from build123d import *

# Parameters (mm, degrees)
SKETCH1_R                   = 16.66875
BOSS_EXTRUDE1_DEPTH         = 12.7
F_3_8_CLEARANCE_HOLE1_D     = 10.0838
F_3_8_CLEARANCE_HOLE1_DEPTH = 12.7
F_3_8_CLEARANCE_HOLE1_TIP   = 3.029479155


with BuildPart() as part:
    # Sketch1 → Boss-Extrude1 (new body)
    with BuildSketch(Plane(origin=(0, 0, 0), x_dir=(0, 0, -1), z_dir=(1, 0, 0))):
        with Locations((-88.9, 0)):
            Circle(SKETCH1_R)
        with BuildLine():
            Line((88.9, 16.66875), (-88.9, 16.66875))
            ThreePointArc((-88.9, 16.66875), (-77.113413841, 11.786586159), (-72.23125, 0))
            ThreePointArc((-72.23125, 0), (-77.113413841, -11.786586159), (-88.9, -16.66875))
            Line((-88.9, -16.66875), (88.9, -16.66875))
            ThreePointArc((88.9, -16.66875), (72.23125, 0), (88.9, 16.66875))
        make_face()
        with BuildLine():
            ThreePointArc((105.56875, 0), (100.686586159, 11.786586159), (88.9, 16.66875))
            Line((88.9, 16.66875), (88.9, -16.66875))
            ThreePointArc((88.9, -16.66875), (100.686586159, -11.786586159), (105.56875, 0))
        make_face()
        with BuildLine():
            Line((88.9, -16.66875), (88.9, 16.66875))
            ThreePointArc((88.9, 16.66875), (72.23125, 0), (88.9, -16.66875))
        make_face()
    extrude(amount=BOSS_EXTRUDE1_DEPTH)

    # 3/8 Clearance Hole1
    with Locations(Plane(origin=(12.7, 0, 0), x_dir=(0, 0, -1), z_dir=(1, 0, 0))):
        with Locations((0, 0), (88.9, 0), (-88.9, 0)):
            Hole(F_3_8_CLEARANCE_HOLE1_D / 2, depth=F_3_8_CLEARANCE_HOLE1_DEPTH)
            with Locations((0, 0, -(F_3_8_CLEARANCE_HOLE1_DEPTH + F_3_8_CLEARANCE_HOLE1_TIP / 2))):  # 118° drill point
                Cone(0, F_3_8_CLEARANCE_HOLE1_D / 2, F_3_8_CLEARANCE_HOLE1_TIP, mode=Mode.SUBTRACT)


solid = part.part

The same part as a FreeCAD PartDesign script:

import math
import FreeCAD as App
import Part
import Sketcher
Q = App.Units.Quantity

doc = App.newDocument("Part")
body = doc.addObject("PartDesign::Body", "Body")

# Sketch on YZ plane
sketch1 = body.newObject("Sketcher::SketchObject", "Sketch")
sketch1.AttachmentSupport = (doc.getObject("YZ_Plane"), [""])
sketch1.MapMode = "FlatFace"
sketch1.addGeometry([
    Part.LineSegment(App.Vector(-16.66875, 88.9, 0), App.Vector(-16.66875, -88.9, 0)),  # 0
    Part.ArcOfCircle(Part.Circle(App.Vector(0, -88.9, 0), App.Vector(0, 0, 1), 16.66875), math.radians(180), math.radians(270)),  # 1
    Part.ArcOfCircle(Part.Circle(App.Vector(0, -88.9, 0), App.Vector(0, 0, 1), 16.66875), math.radians(-90), math.radians(0)),  # 2
    Part.LineSegment(App.Vector(16.66875, -88.9, 0), App.Vector(16.66875, 88.9, 0)),  # 3
    Part.ArcOfCircle(Part.Circle(App.Vector(0, 88.9, 0), App.Vector(0, 0, 1), 16.66875), math.radians(0), math.radians(180)),  # 4
], False)
sketch1.addConstraint([
    Sketcher.Constraint("Tangent", 0, 2, 1, 1),
    Sketcher.Constraint("Tangent", 1, 2, 2, 1),
    Sketcher.Constraint("Tangent", 2, 2, 3, 1),
    Sketcher.Constraint("Tangent", 3, 2, 4, 1),
    Sketcher.Constraint("Tangent", 4, 2, 0, 1),
    Sketcher.Constraint("Vertical", 0),
    Sketcher.Constraint("Vertical", 3),
    Sketcher.Constraint("Equal", 1, 2),
    Sketcher.Constraint("Symmetric", 1, 3, 4, 3, -1, 1),
    Sketcher.Constraint("PointOnObject", 1, 2, -2),
    Sketcher.Constraint("DistanceY", 0, 2, 0, 1, Q("7 in")),
    Sketcher.Constraint("Radius", 1, Q("0.65625 in")),
])
pad1 = body.newObject("PartDesign::Pad", "Pad")
pad1.Profile = sketch1
pad1.Length = Q("0.5 in")

# Sketch on YZ plane
sketch2 = body.newObject("Sketcher::SketchObject", "Sketch001")
sketch2.AttachmentSupport = (doc.getObject("YZ_Plane"), [""])
sketch2.MapMode = "FlatFace"
sketch2.AttachmentOffset = App.Placement(App.Vector(0, 0, 0.5 * 25.4), App.Rotation())
sketch2.addGeometry([
    Part.Circle(App.Vector(0, 0, 0), App.Vector(0, 0, 1), 5.0419),
    Part.Circle(App.Vector(0, -88.9, 0), App.Vector(0, 0, 1), 5.0419),
    Part.Circle(App.Vector(0, 88.9, 0), App.Vector(0, 0, 1), 5.0419),
], False)
sketch2.addConstraint([
    Sketcher.Constraint("Coincident", 0, 3, -1, 1),
    Sketcher.Constraint("Equal", 0, 1),
    Sketcher.Constraint("Equal", 1, 2),
    Sketcher.Constraint("Symmetric", 1, 3, 2, 3, -1, 1),
    Sketcher.Constraint("PointOnObject", 1, 3, -2),
    Sketcher.Constraint("Diameter", 0, Q("0.397 in")),
    Sketcher.Constraint("DistanceY", 1, 3, 2, 3, Q("7 in")),
])
doc.recompute()
hole = body.newObject("PartDesign::Hole", "Hole")
hole.Profile = sketch2
hole.ThreadType = "None"
hole.Diameter = Q("0.397 in")
hole.DepthType = "Dimension"
hole.Depth = Q("0.5 in")
hole.DrillPoint = "Angled"
hole.DrillPointAngle = 118

doc.recompute()
